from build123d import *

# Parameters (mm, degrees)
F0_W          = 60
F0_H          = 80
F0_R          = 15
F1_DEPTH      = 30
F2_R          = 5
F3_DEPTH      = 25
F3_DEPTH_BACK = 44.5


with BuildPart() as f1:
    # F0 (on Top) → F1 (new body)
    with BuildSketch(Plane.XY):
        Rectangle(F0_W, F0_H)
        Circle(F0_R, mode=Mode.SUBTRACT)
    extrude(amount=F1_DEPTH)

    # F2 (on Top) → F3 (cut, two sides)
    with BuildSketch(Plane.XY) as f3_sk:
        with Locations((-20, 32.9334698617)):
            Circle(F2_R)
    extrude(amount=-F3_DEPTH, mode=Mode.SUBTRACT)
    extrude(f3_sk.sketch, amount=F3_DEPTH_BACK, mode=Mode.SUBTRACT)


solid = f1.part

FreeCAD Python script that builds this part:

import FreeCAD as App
import Part
import Sketcher
from FreeCAD import Vector
Q = App.Units.Quantity

doc = App.newDocument("Part")
body = doc.addObject("PartDesign::Body", "Body")

# Sketch on XY plane
sketch1 = body.newObject("Sketcher::SketchObject", "Sketch")
sketch1.AttachmentSupport = (doc.getObject("XY_Plane"), [""])
sketch1.MapMode = "FlatFace"
sketch1.addGeometry([
    Part.LineSegment(Vector(-30, 40, 0), Vector(-30, -40, 0)),  # 0
    Part.LineSegment(Vector(-30, -40, 0), Vector(30, -40, 0)),  # 1
    Part.LineSegment(Vector(30, -40, 0), Vector(30, 40, 0)),  # 2
    Part.LineSegment(Vector(30, 40, 0), Vector(-30, 40, 0)),  # 3
    Part.Circle(Vector(0, 0, 0), Vector(0, 0, 1), 15),  # 4
], False)
sketch1.addConstraint([
    Sketcher.Constraint("Coincident", 0, 2, 1, 1),
    Sketcher.Constraint("Coincident", 1, 2, 2, 1),
    Sketcher.Constraint("Coincident", 2, 2, 3, 1),
    Sketcher.Constraint("Coincident", 3, 2, 0, 1),
    Sketcher.Constraint("Vertical", 0),
    Sketcher.Constraint("Horizontal", 1),
    Sketcher.Constraint("Vertical", 2),
    Sketcher.Constraint("Horizontal", 3),
    Sketcher.Constraint("Coincident", 4, 3, -1, 1),
    Sketcher.Constraint("Symmetric", 0, 2, 2, 2, -1, 1),
    Sketcher.Constraint("Diameter", 4, Q("30 mm")),
    Sketcher.Constraint("DistanceX", 1, 1, 1, 2, Q("60 mm")),
    Sketcher.Constraint("DistanceY", 0, 2, 0, 1, Q("80 mm")),
])
pad1 = body.newObject("PartDesign::Pad", "Pad")
pad1.Profile = sketch1
pad1.Length = 30

# Sketch on XY plane
sketch2 = body.newObject("Sketcher::SketchObject", "Sketch001")
sketch2.AttachmentSupport = (doc.getObject("XY_Plane"), [""])
sketch2.MapMode = "FlatFace"
sketch2.addGeometry(Part.Circle(Vector(-20, 33, 0), Vector(0, 0, 1), 5), False)
sketch2.addConstraint([
    Sketcher.Constraint("Diameter", 0, Q("10 mm")),
    Sketcher.Constraint("DistanceX", 0, 3, -1, 1, Q("20 mm")),
    Sketcher.Constraint("DistanceY", -1, 1, 0, 3, Q("32.93347 mm")),
])
pocket1 = body.newObject("PartDesign::Pocket", "Pocket")
pocket1.Profile = sketch2
pocket1.Type = "ThroughAll"
pocket1.Midplane = True

doc.recompute()
